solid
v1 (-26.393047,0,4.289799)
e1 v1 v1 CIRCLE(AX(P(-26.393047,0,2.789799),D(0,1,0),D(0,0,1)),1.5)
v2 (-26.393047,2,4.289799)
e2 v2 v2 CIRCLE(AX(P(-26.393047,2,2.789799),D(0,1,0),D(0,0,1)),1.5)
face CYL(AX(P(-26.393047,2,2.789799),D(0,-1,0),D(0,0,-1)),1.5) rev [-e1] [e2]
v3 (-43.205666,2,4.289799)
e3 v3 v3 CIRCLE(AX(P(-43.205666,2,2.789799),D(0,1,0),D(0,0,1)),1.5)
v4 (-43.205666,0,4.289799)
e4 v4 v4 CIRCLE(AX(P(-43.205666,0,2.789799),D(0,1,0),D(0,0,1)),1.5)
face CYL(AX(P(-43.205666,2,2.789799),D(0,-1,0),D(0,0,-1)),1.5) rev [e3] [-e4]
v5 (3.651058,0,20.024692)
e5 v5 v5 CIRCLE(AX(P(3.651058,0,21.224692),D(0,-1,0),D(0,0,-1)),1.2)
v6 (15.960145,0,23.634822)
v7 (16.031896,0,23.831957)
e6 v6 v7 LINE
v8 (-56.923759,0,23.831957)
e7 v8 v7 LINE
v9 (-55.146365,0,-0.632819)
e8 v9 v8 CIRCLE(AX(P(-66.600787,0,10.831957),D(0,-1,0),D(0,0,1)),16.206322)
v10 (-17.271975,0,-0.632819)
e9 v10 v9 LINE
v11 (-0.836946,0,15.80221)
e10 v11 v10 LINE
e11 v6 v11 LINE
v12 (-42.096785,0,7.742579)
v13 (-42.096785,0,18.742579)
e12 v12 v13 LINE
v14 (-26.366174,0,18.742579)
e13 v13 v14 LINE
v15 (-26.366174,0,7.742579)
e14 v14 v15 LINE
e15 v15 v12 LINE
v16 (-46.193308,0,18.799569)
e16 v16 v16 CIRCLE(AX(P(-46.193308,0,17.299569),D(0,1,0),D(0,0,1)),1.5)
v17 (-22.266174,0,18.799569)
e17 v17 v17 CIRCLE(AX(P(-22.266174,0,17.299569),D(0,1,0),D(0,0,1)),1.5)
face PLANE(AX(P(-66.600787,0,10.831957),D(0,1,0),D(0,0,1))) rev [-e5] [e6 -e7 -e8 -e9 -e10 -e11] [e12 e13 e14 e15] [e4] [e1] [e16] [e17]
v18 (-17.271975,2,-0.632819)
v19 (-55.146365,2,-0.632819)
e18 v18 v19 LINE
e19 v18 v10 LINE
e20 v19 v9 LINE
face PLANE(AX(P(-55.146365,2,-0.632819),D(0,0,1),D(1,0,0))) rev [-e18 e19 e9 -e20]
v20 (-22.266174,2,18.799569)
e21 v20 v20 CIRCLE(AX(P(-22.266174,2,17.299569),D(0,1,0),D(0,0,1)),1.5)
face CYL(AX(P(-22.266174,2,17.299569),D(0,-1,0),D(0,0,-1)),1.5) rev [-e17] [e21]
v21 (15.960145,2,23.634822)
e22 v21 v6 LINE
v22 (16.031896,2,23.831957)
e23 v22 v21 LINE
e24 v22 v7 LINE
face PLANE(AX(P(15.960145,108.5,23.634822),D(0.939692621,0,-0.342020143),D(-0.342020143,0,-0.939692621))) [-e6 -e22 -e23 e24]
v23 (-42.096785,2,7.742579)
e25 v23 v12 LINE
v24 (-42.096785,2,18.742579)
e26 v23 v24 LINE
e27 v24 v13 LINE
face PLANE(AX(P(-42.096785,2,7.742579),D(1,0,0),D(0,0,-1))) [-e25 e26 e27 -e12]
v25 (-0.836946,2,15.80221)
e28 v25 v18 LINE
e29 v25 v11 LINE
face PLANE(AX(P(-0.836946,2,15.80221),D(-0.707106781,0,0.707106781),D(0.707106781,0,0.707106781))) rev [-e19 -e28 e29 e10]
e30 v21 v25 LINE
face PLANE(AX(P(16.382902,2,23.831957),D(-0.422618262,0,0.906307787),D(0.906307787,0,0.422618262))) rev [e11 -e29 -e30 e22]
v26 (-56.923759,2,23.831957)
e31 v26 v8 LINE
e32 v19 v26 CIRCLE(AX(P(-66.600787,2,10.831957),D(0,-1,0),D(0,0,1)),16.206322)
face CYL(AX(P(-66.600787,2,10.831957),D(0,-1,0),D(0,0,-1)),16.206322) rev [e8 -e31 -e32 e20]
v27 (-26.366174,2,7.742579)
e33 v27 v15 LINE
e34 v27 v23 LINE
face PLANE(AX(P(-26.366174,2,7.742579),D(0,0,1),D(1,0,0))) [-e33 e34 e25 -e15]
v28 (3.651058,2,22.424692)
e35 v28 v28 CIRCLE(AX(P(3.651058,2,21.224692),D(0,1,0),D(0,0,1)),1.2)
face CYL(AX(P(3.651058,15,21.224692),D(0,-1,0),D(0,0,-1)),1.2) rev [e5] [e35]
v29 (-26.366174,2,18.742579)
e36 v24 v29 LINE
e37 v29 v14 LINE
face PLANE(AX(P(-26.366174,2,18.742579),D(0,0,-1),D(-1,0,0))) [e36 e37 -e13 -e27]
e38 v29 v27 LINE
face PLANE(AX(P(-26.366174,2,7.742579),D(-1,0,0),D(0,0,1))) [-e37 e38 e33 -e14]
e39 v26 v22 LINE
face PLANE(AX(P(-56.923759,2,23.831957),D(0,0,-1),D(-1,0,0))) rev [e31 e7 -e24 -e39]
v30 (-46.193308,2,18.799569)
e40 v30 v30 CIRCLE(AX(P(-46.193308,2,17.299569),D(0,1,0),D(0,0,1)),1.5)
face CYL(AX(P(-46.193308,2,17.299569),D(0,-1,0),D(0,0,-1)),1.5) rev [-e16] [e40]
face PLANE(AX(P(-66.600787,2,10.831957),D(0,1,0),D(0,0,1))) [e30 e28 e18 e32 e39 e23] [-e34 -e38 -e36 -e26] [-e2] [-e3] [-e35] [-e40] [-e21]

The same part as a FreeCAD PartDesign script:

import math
import FreeCAD as App
import Part
import Sketcher
Q = App.Units.Quantity

doc = App.newDocument("Part")
body = doc.addObject("PartDesign::Body", "Body")

# Sketch on XZ plane
sketch1 = body.newObject("Sketcher::SketchObject", "Sketch")
sketch1.AttachmentSupport = (doc.getObject("XZ_Plane"), [""])
sketch1.MapMode = "FlatFace"
sketch1.addGeometry([
    Part.LineSegment(App.Vector(-56.9, 23.8, 0), App.Vector(16.4, 23.8, 0)),  # 0
    Part.LineSegment(App.Vector(16.4, 23.8, 0), App.Vector(-0.8, 15.8, 0)),  # 1
    Part.LineSegment(App.Vector(-0.8, 15.8, 0), App.Vector(-17.3, -0.6, 0)),  # 2
    Part.LineSegment(App.Vector(-17.3, -0.6, 0), App.Vector(-55.1, -0.6, 0)),  # 3
    Part.ArcOfCircle(Part.Circle(App.Vector(-66.6, 10.8, 0), App.Vector(0, 0, 1), 16.2), math.radians(-45), math.radians(24)),  # 4
    Part.ArcOfCircle(Part.Circle(App.Vector(-66.6, 10.8, 0), App.Vector(0, 0, 1), 16.2), math.radians(24), math.radians(53)),  # 5
    Part.Circle(App.Vector(-46.2, 17.3, 0), App.Vector(0, 0, 1), 1.5),  # 6
    Part.LineSegment(App.Vector(-26.4, 18.7, 0), App.Vector(-42.1, 18.7, 0)),  # 7
    Part.LineSegment(App.Vector(-42.1, 18.7, 0), App.Vector(-42.1, 7.7, 0)),  # 8
    Part.LineSegment(App.Vector(-42.1, 7.7, 0), App.Vector(-26.4, 7.7, 0)),  # 9
    Part.LineSegment(App.Vector(-26.4, 7.7, 0), App.Vector(-26.4, 18.7, 0)),  # 10
    Part.Circle(App.Vector(-22.3, 17.3, 0), App.Vector(0, 0, 1), 1.5),  # 11
    Part.Circle(App.Vector(-43.2, 2.8, 0), App.Vector(0, 0, 1), 1.5),  # 12
    Part.Circle(App.Vector(-26.4, 2.8, 0), App.Vector(0, 0, 1), 1.5),  # 13
], False)
sketch1.addConstraint([
    Sketcher.Constraint("Coincident", 0, 2, 1, 1),
    Sketcher.Constraint("Coincident", 1, 2, 2, 1),
    Sketcher.Constraint("Coincident", 2, 2, 3, 1),
    Sketcher.Constraint("Coincident", 3, 2, 4, 1),
    Sketcher.Constraint("Tangent", 4, 2, 5, 1),
    Sketcher.Constraint("Coincident", 5, 2, 0, 1),
    Sketcher.Constraint("Coincident", 7, 2, 8, 1),
    Sketcher.Constraint("Coincident", 8, 2, 9, 1),
    Sketcher.Constraint("Coincident", 9, 2, 10, 1),
    Sketcher.Constraint("Coincident", 10, 2, 7, 1),
    Sketcher.Constraint("Horizontal", 0),
    Sketcher.Constraint("Horizontal", 3),
    Sketcher.Constraint("Horizontal", 7),
    Sketcher.Constraint("Vertical", 8),
    Sketcher.Constraint("Horizontal", 9),
    Sketcher.Constraint("Vertical", 10),
    Sketcher.Constraint("Equal", 4, 5),
    Sketcher.Constraint("Equal", 6, 11),
    Sketcher.Constraint("Equal", 11, 12),
    Sketcher.Constraint("Equal", 12, 13),
    Sketcher.Constraint("Horizontal", 6, 3, 11, 3),
    Sketcher.Constraint("Horizontal", 12, 3, 13, 3),
    Sketcher.Constraint("Horizontal", 11, 3, 4, 2),
    Sketcher.Constraint("Diameter", 6, Q("3 mm")),
    Sketcher.Constraint("DistanceY", 8, 2, 8, 1, Q("11 mm")),
    Sketcher.Constraint("Angle", 1, Q("-155 deg")),
    Sketcher.Constraint("Angle", 2, Q("-135 deg")),
    Sketcher.Constraint("Distance", 1, Q("19 mm")),
    Sketcher.Constraint("DistanceY", 5, 3, 0, 2, Q("13 mm")),
    Sketcher.Constraint("DistanceX", 9, 2, 11, 3, Q("4.1 mm")),
    Sketcher.Constraint("Radius", 5, Q("16.206322 mm")),
    Sketcher.Constraint("DistanceX", 0, 1, 0, 2, Q("73.306661 mm")),
    Sketcher.Constraint("DistanceX", 7, 2, 7, 1, Q("15.730612 mm")),
    Sketcher.Constraint("DistanceY", -1, 1, 12, 3, Q("2.789799 mm")),
    Sketcher.Constraint("DistanceX", 13, 3, 1, 2, Q("25.556101 mm")),
    Sketcher.Constraint("DistanceX", 11, 3, 2, 2, Q("4.994199 mm")),
    Sketcher.Constraint("DistanceX", 3, 2, 12, 3, Q("11.940699 mm")),
    Sketcher.Constraint("DistanceY", 3, 2, 8, 2, Q("8.375398 mm")),
    Sketcher.Constraint("Distance", 2, Q("23.242641 mm")),
    Sketcher.Constraint("DistanceY", -1, 1, 6, 3, Q("17.299569 mm")),
    Sketcher.Constraint("DistanceY", -1, 1, 1, 2, Q("15.80221 mm")),
    Sketcher.Constraint("DistanceX", 5, 2, -1, 1, Q("56.923759 mm")),
    Sketcher.Constraint("DistanceX", 5, 3, 6, 3, Q("20.40748 mm")),
])
pad1 = body.newObject("PartDesign::Pad", "Pad")
pad1.Profile = sketch1
pad1.Length = 2
pad1.Reversed = True

# Sketch on XZ plane
sketch2 = body.newObject("Sketcher::SketchObject", "Sketch001")
sketch2.AttachmentSupport = (doc.getObject("XZ_Plane"), [""])
sketch2.MapMode = "FlatFace"
sketch2.AttachmentOffset = App.Placement(App.Vector(0, 0, -2), App.Rotation())
sketch2.addGeometry([
    Part.LineSegment(App.Vector(16.38, 23.83, 0), App.Vector(15.96, 23.63, 0)),
    Part.LineSegment(App.Vector(15.96, 23.63, 0), App.Vector(16.06, 23.91, 0)),
    Part.LineSegment(App.Vector(16.06, 23.91, 0), App.Vector(16.38, 23.83, 0)),
], False)
sketch2.addConstraint([
    Sketcher.Constraint("Coincident", 0, 2, 1, 1),
    Sketcher.Constraint("Coincident", 1, 2, 2, 1),
    Sketcher.Constraint("Coincident", 2, 2, 0, 1),
    Sketcher.Constraint("Angle", 0, Q("-155 deg")),
    Sketcher.Constraint("Angle", 1, Q("70 deg")),
    Sketcher.Constraint("Distance", 0, Q("0.466461 mm")),
    Sketcher.Constraint("DistanceX", -1, 1, 1, 2, Q("16.059019 mm")),
    Sketcher.Constraint("DistanceY", 2, 2, 1, 2, Q("0.074519 mm")),
    Sketcher.Constraint("DistanceY", -1, 1, 0, 2, Q("23.634822 mm")),
])
pocket1 = body.newObject("PartDesign::Pocket", "Pocket")
pocket1.Profile = sketch2
pocket1.Type = "ThroughAll"
pocket1.Midplane = True

# Sketch on XZ plane
sketch3 = body.newObject("Sketcher::SketchObject", "Sketch002")
sketch3.AttachmentSupport = (doc.getObject("XZ_Plane"), [""])
sketch3.MapMode = "FlatFace"
sketch3.addGeometry(Part.Circle(App.Vector(3.7, 21.2, 0), App.Vector(0, 0, 1), 1.2), False)
sketch3.addConstraint([
    Sketcher.Constraint("Diameter", 0, Q("2.4 mm")),
    Sketcher.Constraint("DistanceY", -1, 1, 0, 3, Q("21.224692 mm")),
    Sketcher.Constraint("DistanceX", -1, 1, 0, 3, Q("3.651058 mm")),
])
pocket2 = body.newObject("PartDesign::Pocket", "Pocket001")
pocket2.Profile = sketch3
pocket2.Length = 15

doc.recompute()
